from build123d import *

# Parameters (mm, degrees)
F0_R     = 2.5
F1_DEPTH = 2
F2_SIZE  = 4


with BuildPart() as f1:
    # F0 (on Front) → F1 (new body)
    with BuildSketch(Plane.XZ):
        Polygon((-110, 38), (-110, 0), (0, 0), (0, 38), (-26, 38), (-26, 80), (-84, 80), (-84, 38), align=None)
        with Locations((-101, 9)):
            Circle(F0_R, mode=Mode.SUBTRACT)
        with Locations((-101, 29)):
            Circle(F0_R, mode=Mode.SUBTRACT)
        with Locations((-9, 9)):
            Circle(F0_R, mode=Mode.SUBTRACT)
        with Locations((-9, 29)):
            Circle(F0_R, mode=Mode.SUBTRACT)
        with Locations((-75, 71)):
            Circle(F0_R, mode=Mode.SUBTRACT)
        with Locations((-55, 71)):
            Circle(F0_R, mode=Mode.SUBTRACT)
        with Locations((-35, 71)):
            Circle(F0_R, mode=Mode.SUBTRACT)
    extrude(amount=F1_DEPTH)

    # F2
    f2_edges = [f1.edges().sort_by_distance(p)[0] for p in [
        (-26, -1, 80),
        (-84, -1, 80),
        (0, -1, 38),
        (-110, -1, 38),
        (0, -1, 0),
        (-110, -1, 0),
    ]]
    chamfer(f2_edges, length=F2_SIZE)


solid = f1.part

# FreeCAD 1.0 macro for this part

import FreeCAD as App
import Part
import Sketcher
from FreeCAD import Vector


def edges_at(feature, points):
    """Names of the edges that pass closest to the given points."""
    edges = feature.Shape.Edges
    near = lambda p: min(range(len(edges)), key=lambda i: edges[i].distToShape(Part.Vertex(*p))[0])
    return sorted({f"Edge{near(p) + 1}" for p in points})


def add_polygon(sketch, points):
    """Adds a closed chain of lines whose ends are joined by coincident constraints."""
    first, n = sketch.GeometryCount, len(points)
    for a, b in zip(points, points[1:] + points[:1]):
        sketch.addGeometry(Part.LineSegment(App.Vector(*a, 0), App.Vector(*b, 0)), False)
    for i in range(n):
        sketch.addConstraint(Sketcher.Constraint("Coincident", first + i, 2, first + (i + 1) % n, 1))

doc = App.newDocument("Part")
params = doc.addObject("Spreadsheet::Sheet", "Params")
for row, (alias, value) in enumerate([
    ("sketch1_diameter", "5 mm"),
    ("sketch1_width", "110 mm"),
    ("sketch1_width2", "26 mm"),
    ("sketch1_height", "38 mm"),
    ("sketch1_height2", "42 mm"),
    ("pad1_length", "2 mm"),
    ("chamfer_size", "4 mm"),
], start=1):
    params.set(f"A{row}", alias)
    params.set(f"B{row}", "=" + value)
    params.setAlias(f"B{row}", alias)

body = doc.addObject("PartDesign::Body", "Body")

sketch1 = body.newObject("Sketcher::SketchObject", "Sketch")
sketch1.AttachmentSupport = (doc.getObject("XZ_Plane"), [""])
sketch1.MapMode = "FlatFace"
add_polygon(sketch1, [(-110, 38), (-110, 0), (0, 0), (0, 38), (-26, 38), (-26, 80), (-84, 80), (-84, 38)])
sketch1.addGeometry(Part.Circle(Vector(-101, 9, 0), Vector(0, 0, 1), 2.5), False)
sketch1.addGeometry(Part.Circle(Vector(-101, 29, 0), Vector(0, 0, 1), 2.5), False)
sketch1.addGeometry(Part.Circle(Vector(-9, 9, 0), Vector(0, 0, 1), 2.5), False)
sketch1.addGeometry(Part.Circle(Vector(-9, 29, 0), Vector(0, 0, 1), 2.5), False)
sketch1.addGeometry(Part.Circle(Vector(-75, 71, 0), Vector(0, 0, 1), 2.5), False)
sketch1.addGeometry(Part.Circle(Vector(-55, 71, 0), Vector(0, 0, 1), 2.5), False)
sketch1.addGeometry(Part.Circle(Vector(-35, 71, 0), Vector(0, 0, 1), 2.5), False)
sketch1.addConstraint([
    Sketcher.Constraint("Vertical", 0),
    Sketcher.Constraint("Horizontal", 1),
    Sketcher.Constraint("Vertical", 2),
    Sketcher.Constraint("Horizontal", 3),
    Sketcher.Constraint("Vertical", 4),
    Sketcher.Constraint("Horizontal", 5),
    Sketcher.Constraint("Vertical", 6),
    Sketcher.Constraint("Horizontal", 7),
    Sketcher.Constraint("Coincident", 1, 2, -1, 1),
    Sketcher.Constraint("Equal", 8, 9),
    Sketcher.Constraint("Equal", 9, 10),
    Sketcher.Constraint("Equal", 10, 11),
    Sketcher.Constraint("Equal", 11, 12),
    Sketcher.Constraint("Equal", 12, 13),
    Sketcher.Constraint("Equal", 13, 14),
    Sketcher.Constraint("Horizontal", 8, 3, 10, 3),
    Sketcher.Constraint("Horizontal", 9, 3, 11, 3),
    Sketcher.Constraint("Horizontal", 12, 3, 13, 3),
    Sketcher.Constraint("Horizontal", 13, 3, 14, 3),
    Sketcher.Constraint("Horizontal", 3, 2, 6, 2),
    Sketcher.Constraint("Vertical", 8, 3, 9, 3),
    Sketcher.Constraint("Vertical", 10, 3, 11, 3),
    Sketcher.Constraint("Equal", 3, 7),
    Sketcher.Constraint("Diameter", 8, 5.0),
    Sketcher.Constraint("DistanceX", 1, 1, 1, 2, 110.0),
    Sketcher.Constraint("DistanceX", 3, 2, 3, 1, 26.0),
    Sketcher.Constraint("DistanceY", 0, 2, 0, 1, 38.0),
    Sketcher.Constraint("DistanceY", 4, 1, 4, 2, 42.0),
    Sketcher.Constraint("DistanceX", 8, 3, -1, 1, 101.0),
    Sketcher.Constraint("DistanceY", -1, 1, 8, 3, 9.0),
    Sketcher.Constraint("DistanceY", -1, 1, 9, 3, 29.0),
    Sketcher.Constraint("DistanceX", 10, 3, -1, 1, 9.0),
    Sketcher.Constraint("DistanceX", 12, 3, -1, 1, 75.0),
    Sketcher.Constraint("DistanceY", -1, 1, 12, 3, 71.0),
    Sketcher.Constraint("DistanceX", 13, 3, -1, 1, 55.0),
    Sketcher.Constraint("DistanceX", 14, 3, -1, 1, 35.0),
])
sketch1.setExpression("Constraints[31]", "Params.sketch1_diameter")
sketch1.setExpression("Constraints[32]", "Params.sketch1_width")
sketch1.setExpression("Constraints[33]", "Params.sketch1_width2")
sketch1.setExpression("Constraints[34]", "Params.sketch1_height")
sketch1.setExpression("Constraints[35]", "Params.sketch1_height2")
pad1 = body.newObject("PartDesign::Pad", "Pad")
pad1.Profile = sketch1
pad1.setExpression("Length", "Params.pad1_length")
doc.recompute()

chamfer = body.newObject("PartDesign::Chamfer", "Chamfer")
chamfer.Base = (pad1, edges_at(pad1, [
    (-26, -1, 80),
    (-84, -1, 80),
    (0, -1, 38),
    (-110, -1, 38),
    (0, -1, 0),
    (-110, -1, 0),
]))
chamfer.setExpression("Size", "Params.chamfer_size")

doc.recompute()
